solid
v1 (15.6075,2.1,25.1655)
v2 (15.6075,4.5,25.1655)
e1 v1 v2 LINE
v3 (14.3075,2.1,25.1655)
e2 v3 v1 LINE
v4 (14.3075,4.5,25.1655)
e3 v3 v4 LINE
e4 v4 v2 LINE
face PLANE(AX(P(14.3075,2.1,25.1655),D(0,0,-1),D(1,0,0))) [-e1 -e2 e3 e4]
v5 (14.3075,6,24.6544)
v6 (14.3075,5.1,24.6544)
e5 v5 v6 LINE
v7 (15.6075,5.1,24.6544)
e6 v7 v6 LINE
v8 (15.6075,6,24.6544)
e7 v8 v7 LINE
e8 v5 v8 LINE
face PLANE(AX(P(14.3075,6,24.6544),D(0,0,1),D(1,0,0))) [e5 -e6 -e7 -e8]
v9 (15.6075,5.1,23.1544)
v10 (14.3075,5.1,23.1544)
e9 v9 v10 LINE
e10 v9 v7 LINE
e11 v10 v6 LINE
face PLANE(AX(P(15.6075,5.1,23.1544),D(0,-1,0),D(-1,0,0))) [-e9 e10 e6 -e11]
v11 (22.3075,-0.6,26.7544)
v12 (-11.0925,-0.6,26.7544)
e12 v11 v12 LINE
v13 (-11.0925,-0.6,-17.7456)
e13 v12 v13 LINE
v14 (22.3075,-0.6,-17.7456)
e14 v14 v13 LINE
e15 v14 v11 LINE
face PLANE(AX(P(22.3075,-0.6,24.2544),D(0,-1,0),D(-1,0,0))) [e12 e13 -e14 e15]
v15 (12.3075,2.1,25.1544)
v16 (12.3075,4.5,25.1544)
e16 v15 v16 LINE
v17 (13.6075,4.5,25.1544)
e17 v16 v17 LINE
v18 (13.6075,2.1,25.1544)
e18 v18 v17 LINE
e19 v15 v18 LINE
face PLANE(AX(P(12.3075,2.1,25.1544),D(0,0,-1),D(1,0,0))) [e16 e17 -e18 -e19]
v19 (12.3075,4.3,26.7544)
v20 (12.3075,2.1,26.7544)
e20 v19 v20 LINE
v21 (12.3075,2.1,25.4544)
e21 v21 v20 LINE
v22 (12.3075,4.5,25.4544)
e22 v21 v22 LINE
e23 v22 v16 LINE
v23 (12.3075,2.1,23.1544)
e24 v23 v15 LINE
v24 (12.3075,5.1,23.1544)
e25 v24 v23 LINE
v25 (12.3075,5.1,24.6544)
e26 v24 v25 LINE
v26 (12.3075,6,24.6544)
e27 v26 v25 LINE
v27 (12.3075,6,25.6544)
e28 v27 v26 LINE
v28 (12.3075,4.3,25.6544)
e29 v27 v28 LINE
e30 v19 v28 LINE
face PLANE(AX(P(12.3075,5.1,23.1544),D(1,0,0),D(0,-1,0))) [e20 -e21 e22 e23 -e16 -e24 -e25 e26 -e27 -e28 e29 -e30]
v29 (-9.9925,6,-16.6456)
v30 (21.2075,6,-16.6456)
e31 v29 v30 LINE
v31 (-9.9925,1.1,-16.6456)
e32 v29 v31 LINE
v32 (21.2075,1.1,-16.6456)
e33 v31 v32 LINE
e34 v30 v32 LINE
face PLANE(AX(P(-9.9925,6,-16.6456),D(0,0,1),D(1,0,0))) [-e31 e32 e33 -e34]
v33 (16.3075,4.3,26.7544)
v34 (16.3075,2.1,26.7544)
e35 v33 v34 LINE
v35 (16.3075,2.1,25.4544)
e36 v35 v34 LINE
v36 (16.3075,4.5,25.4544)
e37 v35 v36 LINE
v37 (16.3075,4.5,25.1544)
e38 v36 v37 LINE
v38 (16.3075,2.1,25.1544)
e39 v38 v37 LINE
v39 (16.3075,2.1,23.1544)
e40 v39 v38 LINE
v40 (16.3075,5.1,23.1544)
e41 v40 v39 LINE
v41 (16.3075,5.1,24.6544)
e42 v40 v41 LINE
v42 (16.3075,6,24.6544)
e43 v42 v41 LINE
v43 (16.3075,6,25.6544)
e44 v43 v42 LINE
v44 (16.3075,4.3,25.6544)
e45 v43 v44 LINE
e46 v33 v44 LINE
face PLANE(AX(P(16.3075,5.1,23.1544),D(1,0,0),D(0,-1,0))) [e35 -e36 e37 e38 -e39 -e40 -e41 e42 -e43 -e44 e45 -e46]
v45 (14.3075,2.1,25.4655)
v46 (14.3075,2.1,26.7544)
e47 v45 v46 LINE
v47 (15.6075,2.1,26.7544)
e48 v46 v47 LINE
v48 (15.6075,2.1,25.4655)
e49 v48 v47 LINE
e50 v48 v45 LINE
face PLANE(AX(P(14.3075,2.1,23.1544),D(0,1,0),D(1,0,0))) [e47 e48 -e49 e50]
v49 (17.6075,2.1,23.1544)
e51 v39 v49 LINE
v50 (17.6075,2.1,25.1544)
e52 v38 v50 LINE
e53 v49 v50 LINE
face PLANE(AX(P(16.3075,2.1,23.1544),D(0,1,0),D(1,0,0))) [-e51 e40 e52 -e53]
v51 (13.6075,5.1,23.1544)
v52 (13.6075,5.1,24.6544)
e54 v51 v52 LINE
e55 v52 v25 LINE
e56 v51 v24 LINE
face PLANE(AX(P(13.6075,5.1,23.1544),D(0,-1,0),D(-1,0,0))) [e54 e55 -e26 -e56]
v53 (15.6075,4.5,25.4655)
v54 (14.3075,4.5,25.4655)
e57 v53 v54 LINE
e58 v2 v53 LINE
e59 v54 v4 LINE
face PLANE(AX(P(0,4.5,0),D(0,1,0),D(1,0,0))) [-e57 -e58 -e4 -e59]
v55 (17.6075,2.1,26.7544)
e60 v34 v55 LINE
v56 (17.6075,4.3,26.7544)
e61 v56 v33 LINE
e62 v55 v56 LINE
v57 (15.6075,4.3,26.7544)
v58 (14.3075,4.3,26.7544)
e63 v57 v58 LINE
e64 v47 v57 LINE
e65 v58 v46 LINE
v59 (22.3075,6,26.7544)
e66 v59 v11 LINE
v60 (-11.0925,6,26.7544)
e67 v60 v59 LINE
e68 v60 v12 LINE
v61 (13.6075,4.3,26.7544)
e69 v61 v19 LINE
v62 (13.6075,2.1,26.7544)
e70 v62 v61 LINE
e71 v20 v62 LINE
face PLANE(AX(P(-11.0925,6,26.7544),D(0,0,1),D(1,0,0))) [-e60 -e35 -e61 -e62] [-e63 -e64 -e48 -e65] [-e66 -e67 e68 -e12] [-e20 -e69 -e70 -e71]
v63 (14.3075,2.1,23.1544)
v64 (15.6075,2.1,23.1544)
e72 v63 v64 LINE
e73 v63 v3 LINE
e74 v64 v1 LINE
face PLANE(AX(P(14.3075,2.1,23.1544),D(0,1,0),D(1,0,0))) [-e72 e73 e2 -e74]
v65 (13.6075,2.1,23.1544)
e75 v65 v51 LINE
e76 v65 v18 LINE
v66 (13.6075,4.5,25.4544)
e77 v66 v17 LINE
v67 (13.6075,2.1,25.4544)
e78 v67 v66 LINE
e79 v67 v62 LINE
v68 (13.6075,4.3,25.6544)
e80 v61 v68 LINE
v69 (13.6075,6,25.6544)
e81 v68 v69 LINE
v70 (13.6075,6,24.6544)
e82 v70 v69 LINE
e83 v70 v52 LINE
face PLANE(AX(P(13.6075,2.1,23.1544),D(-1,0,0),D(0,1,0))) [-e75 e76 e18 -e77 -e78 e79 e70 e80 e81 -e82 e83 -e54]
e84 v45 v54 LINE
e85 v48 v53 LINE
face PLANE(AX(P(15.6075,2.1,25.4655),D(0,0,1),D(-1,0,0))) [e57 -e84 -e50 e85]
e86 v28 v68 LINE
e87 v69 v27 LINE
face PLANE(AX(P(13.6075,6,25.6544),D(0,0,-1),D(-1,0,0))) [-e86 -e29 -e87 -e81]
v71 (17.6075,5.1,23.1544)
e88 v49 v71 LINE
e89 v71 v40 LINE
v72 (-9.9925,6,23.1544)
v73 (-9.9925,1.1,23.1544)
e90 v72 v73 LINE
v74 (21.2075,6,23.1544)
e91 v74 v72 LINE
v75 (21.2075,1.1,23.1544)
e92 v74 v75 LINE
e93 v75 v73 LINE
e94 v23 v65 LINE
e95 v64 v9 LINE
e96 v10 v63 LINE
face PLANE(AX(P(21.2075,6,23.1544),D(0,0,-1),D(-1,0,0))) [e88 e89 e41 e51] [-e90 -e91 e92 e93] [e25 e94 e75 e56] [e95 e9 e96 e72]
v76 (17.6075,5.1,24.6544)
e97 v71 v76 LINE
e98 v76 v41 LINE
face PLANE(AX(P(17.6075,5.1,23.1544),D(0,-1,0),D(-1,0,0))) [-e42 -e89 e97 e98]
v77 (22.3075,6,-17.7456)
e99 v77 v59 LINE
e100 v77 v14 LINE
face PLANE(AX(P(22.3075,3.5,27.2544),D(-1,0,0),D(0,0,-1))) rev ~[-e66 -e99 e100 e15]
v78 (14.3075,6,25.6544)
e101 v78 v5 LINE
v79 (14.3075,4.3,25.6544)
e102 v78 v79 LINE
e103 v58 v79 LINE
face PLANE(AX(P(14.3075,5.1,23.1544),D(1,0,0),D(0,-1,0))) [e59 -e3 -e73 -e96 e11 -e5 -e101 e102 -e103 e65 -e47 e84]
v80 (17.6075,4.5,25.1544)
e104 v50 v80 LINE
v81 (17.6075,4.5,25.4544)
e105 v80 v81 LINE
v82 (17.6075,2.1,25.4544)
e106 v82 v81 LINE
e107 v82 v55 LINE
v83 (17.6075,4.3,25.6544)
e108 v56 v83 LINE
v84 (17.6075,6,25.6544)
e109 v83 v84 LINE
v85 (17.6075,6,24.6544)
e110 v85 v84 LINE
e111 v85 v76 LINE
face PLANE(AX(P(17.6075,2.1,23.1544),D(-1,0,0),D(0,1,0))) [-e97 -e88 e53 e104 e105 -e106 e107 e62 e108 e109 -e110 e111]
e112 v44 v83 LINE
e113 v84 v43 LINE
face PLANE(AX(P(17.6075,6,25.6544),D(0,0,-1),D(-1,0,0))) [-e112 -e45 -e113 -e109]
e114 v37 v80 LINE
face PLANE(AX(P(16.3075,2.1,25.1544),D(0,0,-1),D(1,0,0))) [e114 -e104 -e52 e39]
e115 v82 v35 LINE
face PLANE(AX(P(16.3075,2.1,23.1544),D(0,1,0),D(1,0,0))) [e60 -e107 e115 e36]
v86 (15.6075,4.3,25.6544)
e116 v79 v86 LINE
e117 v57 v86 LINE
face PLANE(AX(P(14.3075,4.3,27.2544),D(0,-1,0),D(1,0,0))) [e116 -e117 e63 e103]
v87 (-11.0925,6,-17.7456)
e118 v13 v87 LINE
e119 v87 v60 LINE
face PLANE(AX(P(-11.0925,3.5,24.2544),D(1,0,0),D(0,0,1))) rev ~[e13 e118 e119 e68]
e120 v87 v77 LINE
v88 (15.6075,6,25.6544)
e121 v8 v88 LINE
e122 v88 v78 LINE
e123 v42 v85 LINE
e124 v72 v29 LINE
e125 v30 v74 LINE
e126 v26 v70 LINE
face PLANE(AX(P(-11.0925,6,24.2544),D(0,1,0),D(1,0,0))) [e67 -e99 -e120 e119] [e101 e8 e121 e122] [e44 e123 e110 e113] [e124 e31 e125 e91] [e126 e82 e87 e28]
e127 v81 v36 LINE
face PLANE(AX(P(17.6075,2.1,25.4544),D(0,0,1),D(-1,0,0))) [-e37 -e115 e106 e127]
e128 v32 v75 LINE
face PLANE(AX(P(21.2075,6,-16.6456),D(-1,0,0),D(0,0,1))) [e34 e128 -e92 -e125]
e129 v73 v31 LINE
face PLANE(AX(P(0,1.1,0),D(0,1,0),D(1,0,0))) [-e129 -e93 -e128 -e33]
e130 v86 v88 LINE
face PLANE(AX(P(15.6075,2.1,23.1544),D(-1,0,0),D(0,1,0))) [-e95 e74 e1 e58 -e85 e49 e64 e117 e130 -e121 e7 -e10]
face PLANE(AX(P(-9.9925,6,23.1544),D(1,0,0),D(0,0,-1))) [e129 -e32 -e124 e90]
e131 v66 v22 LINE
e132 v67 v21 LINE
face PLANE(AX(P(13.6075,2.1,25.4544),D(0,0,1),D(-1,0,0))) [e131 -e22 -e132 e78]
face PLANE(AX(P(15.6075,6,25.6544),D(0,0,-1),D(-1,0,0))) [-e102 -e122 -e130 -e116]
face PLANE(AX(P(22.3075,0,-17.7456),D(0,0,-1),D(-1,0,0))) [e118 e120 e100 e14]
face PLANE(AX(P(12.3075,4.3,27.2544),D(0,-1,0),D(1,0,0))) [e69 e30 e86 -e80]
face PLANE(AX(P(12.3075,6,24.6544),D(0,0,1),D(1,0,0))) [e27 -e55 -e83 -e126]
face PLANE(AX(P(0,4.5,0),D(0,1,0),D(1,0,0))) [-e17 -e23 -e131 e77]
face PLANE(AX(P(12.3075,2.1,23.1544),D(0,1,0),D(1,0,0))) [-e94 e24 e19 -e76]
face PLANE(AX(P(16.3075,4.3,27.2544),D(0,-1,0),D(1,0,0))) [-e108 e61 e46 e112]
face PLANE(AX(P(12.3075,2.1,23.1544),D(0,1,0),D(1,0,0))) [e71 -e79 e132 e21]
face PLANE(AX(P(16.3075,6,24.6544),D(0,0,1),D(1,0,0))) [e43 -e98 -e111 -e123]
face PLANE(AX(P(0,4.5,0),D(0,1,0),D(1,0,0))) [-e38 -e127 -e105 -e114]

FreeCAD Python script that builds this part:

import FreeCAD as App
import Part
import Sketcher


def add_polygon(sketch, points):
    """Adds a closed chain of lines whose ends are joined by coincident constraints."""
    first, n = sketch.GeometryCount, len(points)
    for a, b in zip(points, points[1:] + points[:1]):
        sketch.addGeometry(Part.LineSegment(App.Vector(*a, 0), App.Vector(*b, 0)), False)
    for i in range(n):
        sketch.addConstraint(Sketcher.Constraint("Coincident", first + i, 2, first + (i + 1) % n, 1))

doc = App.newDocument("Part")
params = doc.addObject("Spreadsheet::Sheet", "Params")
for row, (alias, value) in enumerate([
    ("sketch1_height", "42 mm"),
    ("sketch1_width", "33.4 mm"),
    ("pad1_length", "6 mm"),
    ("sketch2_height", "39.8 mm"),
    ("sketch2_width", "31.2 mm"),
    ("pocket1_length", "4.9 mm"),
    ("sketch3_height", "42 mm"),
    ("sketch3_width", "33.4 mm"),
    ("pad2_length", "0.6 mm"),
    ("sketch4_width", "33.4 mm"),
    ("sketch4_height", "4.1 mm"),
    ("pad3_length", "3 mm"),
    ("sketch5_height", "3 mm"),
    ("sketch5_width", "33.4 mm"),
    ("pad4_length", "2.5 mm"),
    ("sketch6_height", "3 mm"),
    ("sketch6_width", "1.3 mm"),
    ("sketch7_width", "1.3 mm"),
    ("sketch7_height", "0.3 mm"),
    ("pad5_length", "3.9 mm"),
    ("sketch8_height", "1 mm"),
    ("sketch8_width", "1.3 mm"),
    ("pocket3_length", "1.5 mm"),
    ("sketch9_height", "0.8 mm"),
    ("sketch9_width", "1.3 mm"),
    ("pad6_length", "1.6 mm"),
    ("sketch10_width", "33.4 mm"),
    ("sketch10_height", "0.5 mm"),
], start=1):
    params.set(f"A{row}", alias)
    params.set(f"B{row}", "=" + value)
    params.setAlias(f"B{row}", alias)

body = doc.addObject("PartDesign::Body", "Body")

sketch1 = doc.addObject("Sketcher::SketchObject", "Sketch")
body.addObject(sketch1)
sketch1.AttachmentSupport = (doc.XZ_Plane, [""])
sketch1.MapMode = "FlatFace"
add_polygon(sketch1, [(22, -18), (-11, -18), (-11, 24), (22, 24)])
sketch1.addConstraint([
    Sketcher.Constraint("Horizontal", 0),
    Sketcher.Constraint("Vertical", 1),
    Sketcher.Constraint("Horizontal", 2),
    Sketcher.Constraint("Vertical", 3),
    Sketcher.Constraint("DistanceY", 1, 1, 1, 2, 42.0),
    Sketcher.Constraint("DistanceX", 0, 2, 0, 1, 33.4),
    Sketcher.Constraint("DistanceX", 0, 2, -1, 1, 11.0925),
    Sketcher.Constraint("DistanceY", 0, 2, -1, 1, 17.7456),
])
sketch1.setExpression("Constraints[8]", "Params.sketch1_height")
sketch1.setExpression("Constraints[9]", "Params.sketch1_width")
pad1 = doc.addObject("PartDesign::Pad", "Pad")
body.addObject(pad1)
pad1.Profile = sketch1
pad1.setExpression("Length", "Params.pad1_length")
pad1.Reversed = True

sketch2 = doc.addObject("Sketcher::SketchObject", "Sketch001")
body.addObject(sketch2)
sketch2.AttachmentSupport = (doc.XZ_Plane, [""])
sketch2.MapMode = "FlatFace"
sketch2.AttachmentOffset = App.Placement(App.Vector(0, 0, -6), App.Rotation())
add_polygon(sketch2, [(21, -17), (-10, -17), (-10, 23), (21, 23)])
sketch2.addConstraint([
    Sketcher.Constraint("Horizontal", 0),
    Sketcher.Constraint("Vertical", 1),
    Sketcher.Constraint("Horizontal", 2),
    Sketcher.Constraint("Vertical", 3),
    Sketcher.Constraint("DistanceY", 1, 1, 1, 2, 39.8),
    Sketcher.Constraint("DistanceX", 0, 2, 0, 1, 31.2),
    Sketcher.Constraint("DistanceX", 0, 2, -1, 1, 9.9925),
    Sketcher.Constraint("DistanceY", 0, 2, -1, 1, 16.6456),
])
sketch2.setExpression("Constraints[8]", "Params.sketch2_height")
sketch2.setExpression("Constraints[9]", "Params.sketch2_width")
pocket1 = doc.addObject("PartDesign::Pocket", "Pocket")
body.addObject(pocket1)
pocket1.Profile = sketch2
pocket1.setExpression("Length", "Params.pocket1_length")
pocket1.Reversed = True

sketch3 = doc.addObject("Sketcher::SketchObject", "Sketch002")
body.addObject(sketch3)
sketch3.AttachmentSupport = (doc.XZ_Plane, [""])
sketch3.MapMode = "FlatFace"
add_polygon(sketch3, [(-11, -18), (22, -18), (22, 24), (-11, 24)])
sketch3.addConstraint([
    Sketcher.Constraint("Horizontal", 0),
    Sketcher.Constraint("Vertical", 1),
    Sketcher.Constraint("Horizontal", 2),
    Sketcher.Constraint("Vertical", 3),
    Sketcher.Constraint("DistanceY", 1, 1, 1, 2, 42.0),
    Sketcher.Constraint("DistanceX", 0, 1, 0, 2, 33.4),
    Sketcher.Constraint("DistanceX", -1, 1, 0, 2, 22.3075),
    Sketcher.Constraint("DistanceY", 0, 2, -1, 1, 17.7456),
])
sketch3.setExpression("Constraints[8]", "Params.sketch3_height")
sketch3.setExpression("Constraints[9]", "Params.sketch3_width")
pad2 = doc.addObject("PartDesign::Pad", "Pad001")
body.addObject(pad2)
pad2.Profile = sketch3
pad2.setExpression("Length", "Params.pad2_length")

sketch4 = doc.addObject("Sketcher::SketchObject", "Sketch003")
body.addObject(sketch4)
sketch4.AttachmentSupport = (doc.XY_Plane, [""])
sketch4.MapMode = "FlatFace"
sketch4.AttachmentOffset = App.Placement(App.Vector(0, 0, 24.2544), App.Rotation())
add_polygon(sketch4, [(-11.1, -0.6), (22.3, -0.6), (22.3, 3.5), (-11.1, 3.5)])
sketch4.addConstraint([
    Sketcher.Constraint("Horizontal", 0),
    Sketcher.Constraint("Vertical", 1),
    Sketcher.Constraint("Horizontal", 2),
    Sketcher.Constraint("Vertical", 3),
    Sketcher.Constraint("DistanceX", 0, 1, 0, 2, 33.4),
    Sketcher.Constraint("DistanceY", 1, 1, 1, 2, 4.1),
    Sketcher.Constraint("DistanceY", 0, 2, -1, 1, 0.6),
    Sketcher.Constraint("DistanceX", -1, 1, 0, 2, 22.3075),
])
sketch4.setExpression("Constraints[8]", "Params.sketch4_width")
sketch4.setExpression("Constraints[9]", "Params.sketch4_height")
pad3 = doc.addObject("PartDesign::Pad", "Pad002")
body.addObject(pad3)
pad3.Profile = sketch4
pad3.setExpression("Length", "Params.pad3_length")

sketch5 = doc.addObject("Sketcher::SketchObject", "Sketch004")
body.addObject(sketch5)
sketch5.AttachmentSupport = (doc.XZ_Plane, [""])
sketch5.MapMode = "FlatFace"
sketch5.AttachmentOffset = App.Placement(App.Vector(0, 0, -3.5), App.Rotation())
add_polygon(sketch5, [(22.3, 24.3), (-11.1, 24.3), (-11.1, 27.3), (22.3, 27.3)])
sketch5.addConstraint([
    Sketcher.Constraint("Horizontal", 0),
    Sketcher.Constraint("Vertical", 1),
    Sketcher.Constraint("Horizontal", 2),
    Sketcher.Constraint("Vertical", 3),
    Sketcher.Constraint("DistanceY", 1, 1, 1, 2, 3.0),
    Sketcher.Constraint("DistanceX", 0, 2, 0, 1, 33.4),
    Sketcher.Constraint("DistanceX", 0, 2, -1, 1, 11.0925),
    Sketcher.Constraint("DistanceY", -1, 1, 0, 2, 24.2544),
])
sketch5.setExpression("Constraints[8]", "Params.sketch5_height")
sketch5.setExpression("Constraints[9]", "Params.sketch5_width")
pad4 = doc.addObject("PartDesign::Pad", "Pad003")
body.addObject(pad4)
pad4.Profile = sketch5
pad4.setExpression("Length", "Params.pad4_length")
pad4.Reversed = True

sketch6 = doc.addObject("Sketcher::SketchObject", "Sketch005")
body.addObject(sketch6)
sketch6.AttachmentSupport = (doc.XY_Plane, [""])
sketch6.MapMode = "FlatFace"
sketch6.AttachmentOffset = App.Placement(App.Vector(0, 0, 23.1544), App.Rotation())
add_polygon(sketch6, [(16.3, 5.1), (17.6, 5.1), (17.6, 2.1), (16.3, 2.1)])
add_polygon(sketch6, [(14.3, 5.1), (15.6, 5.1), (15.6, 2.1), (14.3, 2.1)])
add_polygon(sketch6, [(12.3, 5.1), (13.6, 5.1), (13.6, 2.1), (12.3, 2.1)])
sketch6.addConstraint([
    Sketcher.Constraint("Horizontal", 0),
    Sketcher.Constraint("Vertical", 1),
    Sketcher.Constraint("Horizontal", 2),
    Sketcher.Constraint("Vertical", 3),
    Sketcher.Constraint("Horizontal", 4),
    Sketcher.Constraint("Vertical", 5),
    Sketcher.Constraint("Horizontal", 6),
    Sketcher.Constraint("Vertical", 7),
    Sketcher.Constraint("Horizontal", 8),
    Sketcher.Constraint("Vertical", 9),
    Sketcher.Constraint("Horizontal", 10),
    Sketcher.Constraint("Vertical", 11),
    Sketcher.Constraint("Horizontal", 3, 2, 4, 2),
    Sketcher.Constraint("Horizontal", 2, 2, 5, 2),
    Sketcher.Constraint("Horizontal", 7, 2, 8, 2),
    Sketcher.Constraint("Horizontal", 6, 2, 9, 2),
    Sketcher.Constraint("Equal", 2, 4),
    Sketcher.Constraint("Equal", 6, 8),
    Sketcher.Constraint("DistanceY", 1, 2, 1, 1, 3.0),
    Sketcher.Constraint("DistanceX", 0, 1, 0, 2, 1.3),
    Sketcher.Constraint("DistanceX", 4, 2, 3, 2, 0.7),
    Sketcher.Constraint("DistanceX", 8, 2, 7, 2, 0.7),
    Sketcher.Constraint("DistanceY", -1, 1, 0, 2, 5.1),
    Sketcher.Constraint("DistanceX", -1, 1, 0, 2, 17.6075),
])
sketch6.setExpression("Constraints[30]", "Params.sketch6_height")
sketch6.setExpression("Constraints[31]", "Params.sketch6_width")
pocket2 = doc.addObject("PartDesign::Pocket", "Pocket001")
body.addObject(pocket2)
pocket2.Profile = sketch6
pocket2.Type = "ThroughAll"
pocket2.Reversed = True

sketch7 = doc.addObject("Sketcher::SketchObject", "Sketch006")
body.addObject(sketch7)
sketch7.AttachmentSupport = (doc.XZ_Plane, [""])
sketch7.MapMode = "FlatFace"
sketch7.AttachmentOffset = App.Placement(App.Vector(0, 0, -2.1), App.Rotation())
add_polygon(sketch7, [(17.61, 25.45), (17.61, 25.15), (16.31, 25.15), (16.31, 25.45)])
add_polygon(sketch7, [(14.31, 25.47), (15.61, 25.47), (15.61, 25.17), (14.31, 25.17)])
add_polygon(sketch7, [(12.31, 25.45), (13.61, 25.45), (13.61, 25.15), (12.31, 25.15)])
sketch7.addConstraint([
    Sketcher.Constraint("Vertical", 0),
    Sketcher.Constraint("Horizontal", 1),
    Sketcher.Constraint("Vertical", 2),
    Sketcher.Constraint("Horizontal", 3),
    Sketcher.Constraint("Horizontal", 4),
    Sketcher.Constraint("Vertical", 5),
    Sketcher.Constraint("Horizontal", 6),
    Sketcher.Constraint("Vertical", 7),
    Sketcher.Constraint("Horizontal", 8),
    Sketcher.Constraint("Vertical", 9),
    Sketcher.Constraint("Horizontal", 10),
    Sketcher.Constraint("Vertical", 11),
    Sketcher.Constraint("Horizontal", 3, 2, 8, 2),
    Sketcher.Constraint("Horizontal", 1, 2, 9, 2),
    Sketcher.Constraint("Equal", 3, 4),
    Sketcher.Constraint("Equal", 6, 8),
    Sketcher.Constraint("Equal", 2, 5),
    Sketcher.Constraint("DistanceX", 1, 2, 1, 1, 1.3),
    Sketcher.Constraint("DistanceY", 0, 2, 0, 1, 0.3),
    Sketcher.Constraint("DistanceX", 4, 2, 3, 2, 2.0),
    Sketcher.Constraint("DistanceX", 8, 2, 4, 2, 2.0),
    Sketcher.Constraint("DistanceY", 2, 2, 4, 2, 0.011),
    Sketcher.Constraint("DistanceX", -1, 1, 0, 2, 17.6075),
    Sketcher.Constraint("DistanceY", -1, 1, 0, 2, 25.1544),
])
sketch7.setExpression("Constraints[29]", "Params.sketch7_width")
sketch7.setExpression("Constraints[30]", "Params.sketch7_height")
pad5 = doc.addObject("PartDesign::Pad", "Pad004")
body.addObject(pad5)
pad5.Profile = sketch7
pad5.setExpression("Length", "Params.pad5_length")
pad5.Reversed = True

sketch8 = doc.addObject("Sketcher::SketchObject", "Sketch007")
body.addObject(sketch8)
sketch8.AttachmentSupport = (doc.XZ_Plane, [""])
sketch8.MapMode = "FlatFace"
sketch8.AttachmentOffset = App.Placement(App.Vector(0, 0, -6), App.Rotation())
add_polygon(sketch8, [(16.3, 25.7), (17.6, 25.7), (17.6, 24.7), (16.3, 24.7)])
add_polygon(sketch8, [(12.3, 25.7), (13.6, 25.7), (13.6, 24.7), (12.3, 24.7)])
add_polygon(sketch8, [(14.3, 25.7), (15.6, 25.7), (15.6, 24.7), (14.3, 24.7)])
sketch8.addConstraint([
    Sketcher.Constraint("Horizontal", 0),
    Sketcher.Constraint("Vertical", 1),
    Sketcher.Constraint("Horizontal", 2),
    Sketcher.Constraint("Vertical", 3),
    Sketcher.Constraint("Horizontal", 4),
    Sketcher.Constraint("Vertical", 5),
    Sketcher.Constraint("Horizontal", 6),
    Sketcher.Constraint("Vertical", 7),
    Sketcher.Constraint("Horizontal", 8),
    Sketcher.Constraint("Vertical", 9),
    Sketcher.Constraint("Horizontal", 10),
    Sketcher.Constraint("Vertical", 11),
    Sketcher.Constraint("Horizontal", 3, 2, 4, 2),
    Sketcher.Constraint("Horizontal", 2, 2, 5, 2),
    Sketcher.Constraint("Horizontal", 7, 2, 8, 2),
    Sketcher.Constraint("Horizontal", 6, 2, 9, 2),
    Sketcher.Constraint("Equal", 2, 4),
    Sketcher.Constraint("Equal", 6, 8),
    Sketcher.Constraint("DistanceY", 1, 2, 1, 1, 1.0),
    Sketcher.Constraint("DistanceX", 0, 1, 0, 2, 1.3),
    Sketcher.Constraint("DistanceX", 4, 2, 0, 2, 4.0),
    Sketcher.Constraint("DistanceX", 4, 2, 8, 2, 2.0),
    Sketcher.Constraint("DistanceX", -1, 1, 0, 2, 17.6075),
    Sketcher.Constraint("DistanceY", -1, 1, 0, 2, 25.6544),
])
sketch8.setExpression("Constraints[30]", "Params.sketch8_height")
sketch8.setExpression("Constraints[31]", "Params.sketch8_width")
pocket3 = doc.addObject("PartDesign::Pocket", "Pocket002")
body.addObject(pocket3)
pocket3.Profile = sketch8
pocket3.setExpression("Length", "Params.pocket3_length")
pocket3.Reversed = True

sketch9 = doc.addObject("Sketcher::SketchObject", "Sketch008")
body.addObject(sketch9)
sketch9.AttachmentSupport = (doc.XY_Plane, [""])
sketch9.MapMode = "FlatFace"
sketch9.AttachmentOffset = App.Placement(App.Vector(0, 0, 27.2544), App.Rotation())
add_polygon(sketch9, [(16.3, 5.1), (16.3, 4.3), (17.6, 4.3), (17.6, 5.1)])
add_polygon(sketch9, [(14.3, 5.1), (14.3, 4.3), (15.6, 4.3), (15.6, 5.1)])
add_polygon(sketch9, [(13.6, 4.3), (13.6, 5.1), (12.3, 5.1), (12.3, 4.3)])
sketch9.addConstraint([
    Sketcher.Constraint("Vertical", 0),
    Sketcher.Constraint("Horizontal", 1),
    Sketcher.Constraint("Vertical", 2),
    Sketcher.Constraint("Horizontal", 3),
    Sketcher.Constraint("Vertical", 4),
    Sketcher.Constraint("Horizontal", 5),
    Sketcher.Constraint("Vertical", 6),
    Sketcher.Constraint("Horizontal", 7),
    Sketcher.Constraint("Vertical", 8),
    Sketcher.Constraint("Horizontal", 9),
    Sketcher.Constraint("Vertical", 10),
    Sketcher.Constraint("Horizontal", 11),
    Sketcher.Constraint("Horizontal", 1, 2, 4, 2),
    Sketcher.Constraint("Horizontal", 3, 2, 6, 2),
    Sketcher.Constraint("Horizontal", 7, 2, 8, 2),
    Sketcher.Constraint("Horizontal", 5, 2, 10, 2),
    Sketcher.Constraint("Equal", 3, 5),
    Sketcher.Constraint("Equal", 7, 9),
    Sketcher.Constraint("DistanceY", 0, 2, 0, 1, 0.8),
    Sketcher.Constraint("DistanceX", 1, 1, 1, 2, 1.3),
    Sketcher.Constraint("DistanceX", 4, 2, 0, 2, 2.0),
    Sketcher.Constraint("DistanceX", 8, 2, 6, 2, 2.0),
    Sketcher.Constraint("DistanceY", -1, 1, 0, 2, 4.3),
    Sketcher.Constraint("DistanceX", -1, 1, 0, 2, 16.3075),
])
sketch9.setExpression("Constraints[30]", "Params.sketch9_height")
sketch9.setExpression("Constraints[31]", "Params.sketch9_width")
pad6 = doc.addObject("PartDesign::Pad", "Pad005")
body.addObject(pad6)
pad6.Profile = sketch9
pad6.setExpression("Length", "Params.pad6_length")
pad6.Reversed = True

sketch10 = doc.addObject("Sketcher::SketchObject", "Sketch009")
body.addObject(sketch10)
sketch10.AttachmentSupport = (doc.XZ_Plane, [""])
sketch10.MapMode = "FlatFace"
sketch10.AttachmentOffset = App.Placement(App.Vector(0, 0, -6), App.Rotation())
add_polygon(sketch10, [(-11.1, 26.8), (-11.1, 27.3), (22.3, 27.3), (22.3, 26.8)])
sketch10.addConstraint([
    Sketcher.Constraint("Vertical", 0),
    Sketcher.Constraint("Horizontal", 1),
    Sketcher.Constraint("Vertical", 2),
    Sketcher.Constraint("Horizontal", 3),
    Sketcher.Constraint("DistanceX", 1, 1, 1, 2, 33.4),
    Sketcher.Constraint("DistanceY", 0, 1, 0, 2, 0.5),
    Sketcher.Constraint("DistanceX", 0, 2, -1, 1, 11.0925),
    Sketcher.Constraint("DistanceY", -1, 1, 0, 2, 27.2544),
])
sketch10.setExpression("Constraints[8]", "Params.sketch10_width")
sketch10.setExpression("Constraints[9]", "Params.sketch10_height")
pocket4 = doc.addObject("PartDesign::Pocket", "Pocket003")
body.addObject(pocket4)
pocket4.Profile = sketch10
pocket4.Type = "ThroughAll"
pocket4.Reversed = True

doc.recompute()
